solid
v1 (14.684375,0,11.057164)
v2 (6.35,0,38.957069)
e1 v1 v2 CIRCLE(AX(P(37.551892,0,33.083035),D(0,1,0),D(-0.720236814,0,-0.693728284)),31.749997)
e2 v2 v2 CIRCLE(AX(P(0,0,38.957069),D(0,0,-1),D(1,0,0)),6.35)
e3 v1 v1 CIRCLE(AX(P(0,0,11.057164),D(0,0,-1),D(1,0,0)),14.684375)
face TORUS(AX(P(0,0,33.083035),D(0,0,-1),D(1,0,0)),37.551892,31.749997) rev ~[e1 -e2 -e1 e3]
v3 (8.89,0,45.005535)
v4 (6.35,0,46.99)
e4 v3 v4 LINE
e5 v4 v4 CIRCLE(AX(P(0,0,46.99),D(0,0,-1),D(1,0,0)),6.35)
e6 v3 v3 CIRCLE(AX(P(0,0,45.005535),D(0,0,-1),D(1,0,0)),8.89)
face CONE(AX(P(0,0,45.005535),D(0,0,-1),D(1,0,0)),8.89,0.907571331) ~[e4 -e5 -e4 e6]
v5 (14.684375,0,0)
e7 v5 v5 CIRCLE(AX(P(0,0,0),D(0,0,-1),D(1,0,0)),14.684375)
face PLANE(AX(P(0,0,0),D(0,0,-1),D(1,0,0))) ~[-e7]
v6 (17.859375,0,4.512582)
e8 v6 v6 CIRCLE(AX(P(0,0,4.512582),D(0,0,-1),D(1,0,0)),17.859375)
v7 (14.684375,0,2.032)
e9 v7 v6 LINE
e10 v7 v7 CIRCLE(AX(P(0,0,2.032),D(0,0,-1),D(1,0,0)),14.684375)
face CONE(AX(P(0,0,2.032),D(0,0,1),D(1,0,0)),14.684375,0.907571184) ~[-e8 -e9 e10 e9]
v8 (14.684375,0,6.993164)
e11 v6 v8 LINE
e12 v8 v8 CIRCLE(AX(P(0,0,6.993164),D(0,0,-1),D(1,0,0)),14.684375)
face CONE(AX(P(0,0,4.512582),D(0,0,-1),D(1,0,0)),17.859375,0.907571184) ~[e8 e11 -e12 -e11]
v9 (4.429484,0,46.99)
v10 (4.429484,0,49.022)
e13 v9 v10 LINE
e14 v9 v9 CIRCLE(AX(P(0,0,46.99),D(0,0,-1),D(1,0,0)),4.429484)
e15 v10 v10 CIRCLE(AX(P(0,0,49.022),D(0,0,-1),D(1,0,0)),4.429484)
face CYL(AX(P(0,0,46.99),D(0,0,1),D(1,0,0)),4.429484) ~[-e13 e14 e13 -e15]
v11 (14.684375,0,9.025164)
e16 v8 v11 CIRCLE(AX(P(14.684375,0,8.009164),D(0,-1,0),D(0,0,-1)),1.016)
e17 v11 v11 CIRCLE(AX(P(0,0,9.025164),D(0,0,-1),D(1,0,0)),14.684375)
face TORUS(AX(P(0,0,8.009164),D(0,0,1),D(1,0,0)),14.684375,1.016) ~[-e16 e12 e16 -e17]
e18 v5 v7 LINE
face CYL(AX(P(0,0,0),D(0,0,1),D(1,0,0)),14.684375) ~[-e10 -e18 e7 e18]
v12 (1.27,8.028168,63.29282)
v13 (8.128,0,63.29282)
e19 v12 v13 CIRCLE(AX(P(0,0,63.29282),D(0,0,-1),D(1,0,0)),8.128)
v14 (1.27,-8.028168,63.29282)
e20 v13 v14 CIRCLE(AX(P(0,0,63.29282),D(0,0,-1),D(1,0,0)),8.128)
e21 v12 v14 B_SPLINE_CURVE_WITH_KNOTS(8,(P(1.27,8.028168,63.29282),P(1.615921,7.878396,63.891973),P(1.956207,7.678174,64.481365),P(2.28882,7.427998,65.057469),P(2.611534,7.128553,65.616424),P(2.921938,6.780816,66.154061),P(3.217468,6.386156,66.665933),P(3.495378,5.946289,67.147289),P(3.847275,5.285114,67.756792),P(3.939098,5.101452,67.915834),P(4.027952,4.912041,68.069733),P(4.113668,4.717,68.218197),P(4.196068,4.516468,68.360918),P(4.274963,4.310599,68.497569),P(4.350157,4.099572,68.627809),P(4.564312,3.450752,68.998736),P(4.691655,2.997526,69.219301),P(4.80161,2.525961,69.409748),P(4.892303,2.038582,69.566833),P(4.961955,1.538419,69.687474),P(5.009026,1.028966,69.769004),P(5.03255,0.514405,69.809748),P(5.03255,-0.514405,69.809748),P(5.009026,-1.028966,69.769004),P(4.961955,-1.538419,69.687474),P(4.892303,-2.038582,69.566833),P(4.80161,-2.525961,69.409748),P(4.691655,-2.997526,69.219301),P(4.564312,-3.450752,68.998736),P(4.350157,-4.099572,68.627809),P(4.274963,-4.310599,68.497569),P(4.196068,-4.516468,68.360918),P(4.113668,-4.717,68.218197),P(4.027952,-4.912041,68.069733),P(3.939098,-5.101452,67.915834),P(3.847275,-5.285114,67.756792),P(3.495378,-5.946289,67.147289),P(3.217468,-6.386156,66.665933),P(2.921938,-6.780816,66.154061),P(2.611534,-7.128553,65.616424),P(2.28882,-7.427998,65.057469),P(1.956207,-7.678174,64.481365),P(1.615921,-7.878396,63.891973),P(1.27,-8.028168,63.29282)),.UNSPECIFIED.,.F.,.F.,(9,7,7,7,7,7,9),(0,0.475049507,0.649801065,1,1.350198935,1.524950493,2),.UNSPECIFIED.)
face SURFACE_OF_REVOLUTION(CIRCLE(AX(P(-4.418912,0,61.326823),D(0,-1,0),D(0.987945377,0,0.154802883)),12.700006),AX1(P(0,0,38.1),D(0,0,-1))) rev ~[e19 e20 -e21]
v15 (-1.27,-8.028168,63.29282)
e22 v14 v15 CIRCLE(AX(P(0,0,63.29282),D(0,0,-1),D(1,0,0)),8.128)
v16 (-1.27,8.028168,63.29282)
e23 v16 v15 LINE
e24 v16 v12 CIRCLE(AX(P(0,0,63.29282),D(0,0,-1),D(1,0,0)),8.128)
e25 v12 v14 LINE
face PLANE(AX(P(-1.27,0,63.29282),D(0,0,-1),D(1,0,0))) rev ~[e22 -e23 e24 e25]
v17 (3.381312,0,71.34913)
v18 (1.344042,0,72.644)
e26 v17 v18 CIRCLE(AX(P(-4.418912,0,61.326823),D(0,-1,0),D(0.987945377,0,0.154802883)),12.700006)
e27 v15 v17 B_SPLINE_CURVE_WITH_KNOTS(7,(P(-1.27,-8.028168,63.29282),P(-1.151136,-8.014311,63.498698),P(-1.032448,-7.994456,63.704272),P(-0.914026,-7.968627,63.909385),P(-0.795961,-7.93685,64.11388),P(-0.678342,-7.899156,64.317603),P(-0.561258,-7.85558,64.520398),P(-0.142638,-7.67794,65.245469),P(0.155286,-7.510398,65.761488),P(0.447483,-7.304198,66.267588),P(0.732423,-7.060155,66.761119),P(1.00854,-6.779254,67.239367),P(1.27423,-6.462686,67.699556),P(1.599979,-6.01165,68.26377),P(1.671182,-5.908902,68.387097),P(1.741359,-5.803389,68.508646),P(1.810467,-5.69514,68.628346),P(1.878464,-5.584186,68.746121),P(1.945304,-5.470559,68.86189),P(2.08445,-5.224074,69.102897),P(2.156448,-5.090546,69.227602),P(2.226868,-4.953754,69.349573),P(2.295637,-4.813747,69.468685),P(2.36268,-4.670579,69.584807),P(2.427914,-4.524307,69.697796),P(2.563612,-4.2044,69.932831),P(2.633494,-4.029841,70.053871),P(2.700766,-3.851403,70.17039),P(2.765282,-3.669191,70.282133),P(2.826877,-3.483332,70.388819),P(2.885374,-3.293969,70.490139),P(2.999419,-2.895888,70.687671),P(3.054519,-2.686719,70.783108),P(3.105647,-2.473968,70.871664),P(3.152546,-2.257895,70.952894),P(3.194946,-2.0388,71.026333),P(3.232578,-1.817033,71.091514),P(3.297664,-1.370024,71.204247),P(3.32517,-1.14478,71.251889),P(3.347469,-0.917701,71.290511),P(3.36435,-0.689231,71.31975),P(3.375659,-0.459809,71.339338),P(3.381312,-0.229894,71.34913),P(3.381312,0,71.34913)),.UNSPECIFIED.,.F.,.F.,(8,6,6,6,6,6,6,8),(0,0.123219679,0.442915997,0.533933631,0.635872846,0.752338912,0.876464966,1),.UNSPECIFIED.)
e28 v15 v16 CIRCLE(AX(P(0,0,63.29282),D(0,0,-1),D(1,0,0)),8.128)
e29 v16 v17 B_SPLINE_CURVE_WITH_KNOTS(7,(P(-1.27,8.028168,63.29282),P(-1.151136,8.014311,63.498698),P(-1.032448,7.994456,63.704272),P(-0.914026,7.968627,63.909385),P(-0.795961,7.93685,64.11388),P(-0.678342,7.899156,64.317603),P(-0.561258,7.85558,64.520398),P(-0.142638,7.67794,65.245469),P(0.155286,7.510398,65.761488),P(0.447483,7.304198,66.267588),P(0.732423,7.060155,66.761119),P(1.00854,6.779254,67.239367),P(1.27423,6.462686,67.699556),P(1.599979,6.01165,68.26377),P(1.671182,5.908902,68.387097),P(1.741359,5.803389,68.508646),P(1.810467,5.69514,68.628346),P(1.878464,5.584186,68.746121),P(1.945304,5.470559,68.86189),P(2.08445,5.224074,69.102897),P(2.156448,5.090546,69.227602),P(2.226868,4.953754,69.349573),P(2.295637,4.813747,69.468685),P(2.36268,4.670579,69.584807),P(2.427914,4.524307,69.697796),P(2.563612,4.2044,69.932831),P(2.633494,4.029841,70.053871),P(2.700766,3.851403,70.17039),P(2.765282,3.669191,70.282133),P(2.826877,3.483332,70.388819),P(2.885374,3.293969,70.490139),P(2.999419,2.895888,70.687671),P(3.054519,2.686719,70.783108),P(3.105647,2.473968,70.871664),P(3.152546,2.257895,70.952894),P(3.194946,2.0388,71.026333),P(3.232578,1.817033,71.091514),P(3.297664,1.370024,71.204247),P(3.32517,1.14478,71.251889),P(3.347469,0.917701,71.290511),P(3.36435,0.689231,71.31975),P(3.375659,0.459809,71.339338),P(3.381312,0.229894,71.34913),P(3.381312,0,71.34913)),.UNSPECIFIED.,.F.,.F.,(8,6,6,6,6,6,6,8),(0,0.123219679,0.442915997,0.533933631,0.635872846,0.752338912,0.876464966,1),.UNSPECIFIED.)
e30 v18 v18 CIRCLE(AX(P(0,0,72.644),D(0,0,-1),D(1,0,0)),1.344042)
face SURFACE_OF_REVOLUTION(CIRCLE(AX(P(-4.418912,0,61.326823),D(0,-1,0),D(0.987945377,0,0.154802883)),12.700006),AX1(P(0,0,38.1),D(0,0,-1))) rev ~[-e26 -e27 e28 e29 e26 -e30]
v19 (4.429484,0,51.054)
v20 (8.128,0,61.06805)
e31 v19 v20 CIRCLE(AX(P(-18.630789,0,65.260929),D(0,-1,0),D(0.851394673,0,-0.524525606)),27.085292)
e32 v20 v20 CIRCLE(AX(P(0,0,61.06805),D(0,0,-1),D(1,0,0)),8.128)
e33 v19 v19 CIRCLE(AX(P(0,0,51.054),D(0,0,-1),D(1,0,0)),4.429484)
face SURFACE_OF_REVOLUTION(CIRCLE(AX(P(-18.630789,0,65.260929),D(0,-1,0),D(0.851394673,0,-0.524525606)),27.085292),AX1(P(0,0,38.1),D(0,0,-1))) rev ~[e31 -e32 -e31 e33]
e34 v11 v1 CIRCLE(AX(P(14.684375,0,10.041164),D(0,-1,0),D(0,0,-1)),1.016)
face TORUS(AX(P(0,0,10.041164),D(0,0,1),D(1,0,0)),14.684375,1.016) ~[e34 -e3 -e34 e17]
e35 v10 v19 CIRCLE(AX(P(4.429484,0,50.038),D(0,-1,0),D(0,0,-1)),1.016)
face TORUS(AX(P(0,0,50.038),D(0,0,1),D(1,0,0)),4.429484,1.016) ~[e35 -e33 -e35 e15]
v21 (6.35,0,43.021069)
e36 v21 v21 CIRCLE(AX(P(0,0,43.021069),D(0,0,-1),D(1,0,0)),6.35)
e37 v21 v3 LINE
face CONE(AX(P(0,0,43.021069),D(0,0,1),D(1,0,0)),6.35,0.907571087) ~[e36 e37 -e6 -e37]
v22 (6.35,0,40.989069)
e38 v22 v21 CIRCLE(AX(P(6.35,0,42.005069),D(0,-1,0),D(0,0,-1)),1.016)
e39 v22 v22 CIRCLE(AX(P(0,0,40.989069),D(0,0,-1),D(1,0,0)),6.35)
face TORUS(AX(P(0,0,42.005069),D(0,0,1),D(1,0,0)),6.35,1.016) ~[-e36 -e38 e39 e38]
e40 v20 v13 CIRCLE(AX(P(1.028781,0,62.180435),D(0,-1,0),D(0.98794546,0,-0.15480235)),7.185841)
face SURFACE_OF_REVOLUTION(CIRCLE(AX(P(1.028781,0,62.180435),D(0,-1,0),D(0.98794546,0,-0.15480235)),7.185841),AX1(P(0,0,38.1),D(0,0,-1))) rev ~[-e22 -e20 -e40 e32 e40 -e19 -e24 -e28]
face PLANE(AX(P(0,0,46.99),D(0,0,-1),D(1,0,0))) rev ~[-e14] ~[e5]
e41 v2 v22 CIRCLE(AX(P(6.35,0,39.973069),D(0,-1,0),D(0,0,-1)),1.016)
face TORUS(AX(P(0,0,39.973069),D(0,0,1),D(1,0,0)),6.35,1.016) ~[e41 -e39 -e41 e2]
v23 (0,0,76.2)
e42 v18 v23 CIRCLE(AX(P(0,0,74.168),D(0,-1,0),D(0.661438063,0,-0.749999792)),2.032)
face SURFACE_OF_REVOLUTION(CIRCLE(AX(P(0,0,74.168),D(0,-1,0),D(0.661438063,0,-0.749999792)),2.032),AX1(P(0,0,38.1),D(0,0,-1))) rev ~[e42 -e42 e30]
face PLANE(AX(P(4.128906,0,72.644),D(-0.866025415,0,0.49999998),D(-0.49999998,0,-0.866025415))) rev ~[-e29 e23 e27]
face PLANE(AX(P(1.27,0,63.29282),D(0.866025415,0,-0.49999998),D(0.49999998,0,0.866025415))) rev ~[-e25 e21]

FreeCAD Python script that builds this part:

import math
import FreeCAD as App
import Part
import Sketcher

V = App.Vector
Q = App.Units.Quantity


def add_polygon(sketch, points):
    """Adds a closed chain of lines whose ends are joined by coincident constraints."""
    first, n = sketch.GeometryCount, len(points)
    for a, b in zip(points, points[1:] + points[:1]):
        sketch.addGeometry(Part.LineSegment(App.Vector(*a, 0), App.Vector(*b, 0)), False)
    for i in range(n):
        sketch.addConstraint(Sketcher.Constraint("Coincident", first + i, 2, first + (i + 1) % n, 1))

doc = App.newDocument("Part")
body = doc.addObject("PartDesign::Body", "Body")

sketch1 = doc.addObject("Sketcher::SketchObject", "Sketch")
body.addObject(sketch1)
sketch1.AttachmentSupport = (doc.XZ_Plane, [""])
sketch1.MapMode = "FlatFace"
sketch1.addGeometry([
    Part.ArcOfCircle(Part.Circle(V(0, 74.2, 0), V(0, 0, 1), 2), math.radians(-49), math.radians(90)),
    Part.LineSegment(V(0, 76.2, 0), V(0, 0, 0)),
    Part.LineSegment(V(0, 0, 0), V(14.7, 0, 0)),
    Part.LineSegment(V(14.7, 0, 0), V(14.7, 2, 0)),
    Part.LineSegment(V(14.7, 2, 0), V(17.9, 4.5, 0)),
    Part.LineSegment(V(17.9, 4.5, 0), V(14.7, 7, 0)),
    Part.ArcOfCircle(Part.Circle(V(14.7, 8, 0), V(0, 0, 1), 1), math.radians(-90), math.radians(90)),
    Part.ArcOfCircle(Part.Circle(V(14.7, 10, 0), V(0, 0, 1), 1), math.radians(-90), math.radians(90)),
    Part.ArcOfCircle(Part.Circle(V(37.6, 33.1, 0), V(0, 0, 1), 31.7), math.radians(169), math.radians(224)),
    Part.ArcOfCircle(Part.Circle(V(6.3, 40, 0), V(0, 0, 1), 1), math.radians(-90), math.radians(90)),
    Part.ArcOfCircle(Part.Circle(V(6.3, 42, 0), V(0, 0, 1), 1), math.radians(-90), math.radians(90)),
    Part.LineSegment(V(6.3, 43, 0), V(8.9, 45, 0)),
    Part.LineSegment(V(8.9, 45, 0), V(6.3, 47, 0)),
    Part.LineSegment(V(6.3, 47, 0), V(4.4, 47, 0)),
    Part.LineSegment(V(4.4, 47, 0), V(4.4, 49, 0)),
    Part.ArcOfCircle(Part.Circle(V(4.4, 50, 0), V(0, 0, 1), 1), math.radians(-90), math.radians(90)),
    Part.ArcOfCircle(Part.Circle(V(-18.6, 65.3, 0), V(0, 0, 1), 27.1), math.radians(-32), math.radians(-9)),
    Part.ArcOfCircle(Part.Circle(V(1, 62.2, 0), V(0, 0, 1), 7.2), math.radians(-8.91), math.radians(8.91)),
    Part.ArcOfCircle(Part.Circle(V(-4.4, 61.3, 0), V(0, 0, 1), 12.7), math.radians(9), math.radians(63)),
], False)
sketch1.addConstraint([
    Sketcher.Constraint("Coincident", 0, 2, 1, 1),
    Sketcher.Constraint("Coincident", 1, 2, 2, 1),
    Sketcher.Constraint("Coincident", 2, 2, 3, 1),
    Sketcher.Constraint("Coincident", 3, 2, 4, 1),
    Sketcher.Constraint("Coincident", 4, 2, 5, 1),
    Sketcher.Constraint("Coincident", 5, 2, 6, 1),
    Sketcher.Constraint("Tangent", 6, 2, 7, 1),
    Sketcher.Constraint("Coincident", 7, 2, 8, 2),
    Sketcher.Constraint("Coincident", 8, 1, 9, 1),
    Sketcher.Constraint("Tangent", 9, 2, 10, 1),
    Sketcher.Constraint("Coincident", 10, 2, 11, 1),
    Sketcher.Constraint("Coincident", 11, 2, 12, 1),
    Sketcher.Constraint("Coincident", 12, 2, 13, 1),
    Sketcher.Constraint("Coincident", 13, 2, 14, 1),
    Sketcher.Constraint("Coincident", 14, 2, 15, 1),
    Sketcher.Constraint("Coincident", 15, 2, 16, 1),
    Sketcher.Constraint("Tangent", 16, 2, 17, 1),
    Sketcher.Constraint("Tangent", 17, 2, 18, 1),
    Sketcher.Constraint("Coincident", 18, 2, 0, 1),
    Sketcher.Constraint("Vertical", 1),
    Sketcher.Constraint("Horizontal", 2),
    Sketcher.Constraint("Vertical", 3),
    Sketcher.Constraint("Horizontal", 13),
    Sketcher.Constraint("Vertical", 14),
    Sketcher.Constraint("Coincident", 1, 2, -1, 1),
    Sketcher.Constraint("Equal", 6, 7),
    Sketcher.Constraint("Equal", 7, 9),
    Sketcher.Constraint("Equal", 9, 10),
    Sketcher.Constraint("Equal", 10, 15),
    Sketcher.Constraint("PointOnObject", 0, 3, -2),
    Sketcher.Constraint("Parallel", 4, 11),
    Sketcher.Constraint("Parallel", 5, 12),
    Sketcher.Constraint("Vertical", 6, 3, 7, 3),
    Sketcher.Constraint("Vertical", 9, 3, 10, 3),
    Sketcher.Constraint("Vertical", 7, 3, 2, 2),
    Sketcher.Constraint("Vertical", 3, 2, 5, 2),
    Sketcher.Constraint("Vertical", 6, 2, 7, 2),
    Sketcher.Constraint("Vertical", 10, 3, 8, 1),
    Sketcher.Constraint("Vertical", 9, 2, 10, 2),
    Sketcher.Constraint("Vertical", 10, 2, 12, 2),
    Sketcher.Constraint("Vertical", 15, 3, 13, 2),
    Sketcher.Constraint("Vertical", 14, 2, 15, 2),
    Sketcher.Constraint("Vertical", 16, 2, 17, 2),
    Sketcher.Constraint("Equal", 3, 14),
    Sketcher.Constraint("Equal", 4, 5),
    Sketcher.Constraint("DistanceY", 1, 2, 1, 1, Q("3 in")),
    Sketcher.Constraint("Radius", 0, Q("0.08 in")),
    Sketcher.Constraint("Radius", 6, Q("0.04 in")),
    Sketcher.Constraint("Radius", 8, Q("1.2499999 in")),
    Sketcher.Constraint("Angle", 4, Q("38.000002 deg")),
    Sketcher.Constraint("DistanceY", 3, 1, 3, 2, Q("0.08 in")),
    Sketcher.Constraint("DistanceX", 10, 2, 11, 2, Q("0.1 in")),
    Sketcher.Constraint("DistanceX", 2, 1, 2, 2, Q("0.578125 in")),
    Sketcher.Constraint("DistanceX", -1, 1, 9, 3, Q("0.25 in")),
    Sketcher.Constraint("DistanceY", -1, 1, 15, 3, Q("1.97 in")),
    Sketcher.Constraint("DistanceX", -1, 1, 16, 2, Q("0.32 in")),
    Sketcher.Constraint("DistanceY", -1, 1, 18, 2, Q("2.86 in")),
    Sketcher.Constraint("DistanceX", -1, 1, 4, 2, Q("0.703125 in")),
    Sketcher.Constraint("Radius", 16, 27.085292),
    Sketcher.Constraint("Radius", 17, 7.185841),
    Sketcher.Constraint("Radius", 18, 12.700006),
    Sketcher.Constraint("DistanceX", 13, 2, 13, 1, 1.920516),
])
revolution = doc.addObject("PartDesign::Revolution", "Revolution")
body.addObject(revolution)
revolution.Profile = sketch1
revolution.ReferenceAxis = (sketch1, ["V_Axis"])
revolution.Angle = 360

sketch2 = doc.addObject("Sketcher::SketchObject", "Sketch001")
body.addObject(sketch2)
sketch2.AttachmentSupport = (doc.XZ_Plane, [""])
sketch2.MapMode = "FlatFace"
add_polygon(sketch2, [(4.1, 72.6), (-1.3, 63.3), (1.3, 63.3), (6.7, 72.6)])
sketch2.addConstraint([
    Sketcher.Constraint("Horizontal", 1),
    Sketcher.Constraint("Horizontal", 3),
    Sketcher.Constraint("Parallel", 0, 2),
    Sketcher.Constraint("DistanceX", 1, 1, 1, 2, Q("0.1 in")),
    Sketcher.Constraint("Angle", 0, Q("-119.999999 deg")),
    Sketcher.Constraint("DistanceX", 0, 2, -1, 1, Q("0.05 in")),
    Sketcher.Constraint("DistanceY", -1, 1, 2, 2, Q("2.86 in")),
    Sketcher.Constraint("DistanceY", -1, 1, 0, 2, 63.29282),
])
pocket1 = doc.addObject("PartDesign::Pocket", "Pocket")
body.addObject(pocket1)
pocket1.Profile = sketch2
pocket1.Length = Q("1 in")
pocket1.Midplane = True

doc.recompute()
